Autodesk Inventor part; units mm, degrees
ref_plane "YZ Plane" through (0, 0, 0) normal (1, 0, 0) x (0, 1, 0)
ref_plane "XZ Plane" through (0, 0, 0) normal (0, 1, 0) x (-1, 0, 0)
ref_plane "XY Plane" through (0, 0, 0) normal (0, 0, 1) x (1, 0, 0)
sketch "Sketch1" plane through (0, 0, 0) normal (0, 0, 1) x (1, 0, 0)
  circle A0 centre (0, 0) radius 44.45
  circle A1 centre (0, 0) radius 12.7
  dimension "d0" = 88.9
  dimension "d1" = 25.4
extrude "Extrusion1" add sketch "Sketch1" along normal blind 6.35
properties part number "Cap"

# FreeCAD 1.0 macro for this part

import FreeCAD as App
import Part
import Sketcher

V = App.Vector
Q = App.Units.Quantity

doc = App.newDocument("Part")
body = doc.addObject("PartDesign::Body", "Body")

sketch1 = doc.addObject("Sketcher::SketchObject", "Sketch")
body.addObject(sketch1)
sketch1.AttachmentSupport = (doc.XY_Plane, [""])
sketch1.MapMode = "FlatFace"
sketch1.addGeometry(Part.Circle(V(0, 0, 0), V(0, 0, 1), 44.45), False)
sketch1.addGeometry(Part.Circle(V(0, 0, 0), V(0, 0, 1), 12.7), False)
sketch1.addConstraint(Sketcher.Constraint("Coincident", 0, 3, -1, 1))
sketch1.addConstraint(Sketcher.Constraint("Coincident", 1, 3, -1, 1))
sketch1.addConstraint(Sketcher.Constraint("Diameter", 1, Q("1 in")))
sketch1.addConstraint(Sketcher.Constraint("Diameter", 0, Q("3.5 in")))
pad1 = doc.addObject("PartDesign::Pad", "Pad")
body.addObject(pad1)
pad1.Profile = sketch1
pad1.Length = Q("0.25 in")

doc.recompute()
